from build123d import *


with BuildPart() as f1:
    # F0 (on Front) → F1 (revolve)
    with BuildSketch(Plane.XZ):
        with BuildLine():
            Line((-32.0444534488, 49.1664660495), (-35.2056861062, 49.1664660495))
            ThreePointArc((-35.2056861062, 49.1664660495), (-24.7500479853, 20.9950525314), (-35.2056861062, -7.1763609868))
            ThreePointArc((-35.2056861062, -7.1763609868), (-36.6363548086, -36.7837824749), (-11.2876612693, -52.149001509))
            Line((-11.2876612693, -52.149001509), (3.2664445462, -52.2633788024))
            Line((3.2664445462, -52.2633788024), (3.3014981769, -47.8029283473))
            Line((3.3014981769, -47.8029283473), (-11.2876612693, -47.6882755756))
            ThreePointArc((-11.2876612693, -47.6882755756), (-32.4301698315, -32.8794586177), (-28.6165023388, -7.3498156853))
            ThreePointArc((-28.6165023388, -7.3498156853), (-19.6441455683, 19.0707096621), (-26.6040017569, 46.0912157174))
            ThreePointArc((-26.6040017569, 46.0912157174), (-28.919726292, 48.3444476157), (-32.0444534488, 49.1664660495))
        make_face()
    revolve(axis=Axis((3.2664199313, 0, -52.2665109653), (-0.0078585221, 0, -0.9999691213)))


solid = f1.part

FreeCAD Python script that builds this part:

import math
import FreeCAD as App
import Part
import Sketcher
Q = App.Units.Quantity

doc = App.newDocument("Part")
params = doc.addObject("Spreadsheet::Sheet", "Params")
for row, (alias, value) in enumerate([
    ("sketch1_radius", "1.7 in"),
    ("sketch1_radius2", "0.25 in"),
    ("revolution_angle", "360 deg"),
], start=1):
    params.set(f"A{row}", alias)
    params.set(f"B{row}", "=" + value)
    params.setAlias(f"B{row}", alias)

body = doc.addObject("PartDesign::Body", "Body")

sketch1 = body.newObject("Sketcher::SketchObject", "Sketch")
sketch1.AttachmentSupport = (doc.getObject("XZ_Plane"), [""])
sketch1.MapMode = "FlatFace"
sketch1.addGeometry([
    Part.LineSegment(App.Vector(-32, 49.2, 0), App.Vector(-35.2, 49.2, 0)),
    Part.ArcOfCircle(Part.Circle(App.Vector(-67.9, 21, 0), App.Vector(0, 0, 1), 43.2), math.radians(-41), math.radians(41)),
    Part.ArcOfCircle(Part.Circle(App.Vector(-11.1, -23.2, 0), App.Vector(0, 0, 1), 29), math.radians(146), math.radians(270)),
    Part.LineSegment(App.Vector(-11.3, -52.1, 0), App.Vector(3.3, -52.3, 0)),
    Part.LineSegment(App.Vector(3.3, -52.3, 0), App.Vector(3.3, -47.8, 0)),
    Part.LineSegment(App.Vector(3.3, -47.8, 0), App.Vector(-11.3, -47.7, 0)),
    Part.ArcOfCircle(Part.Circle(App.Vector(-9.9, -23.2, 0), App.Vector(0, 0, 1), 24.5), math.radians(140), math.radians(267)),
    Part.ArcOfCircle(Part.Circle(App.Vector(-68.4, 20.9, 0), App.Vector(0, 0, 1), 48.8), math.radians(-35), math.radians(31)),
    Part.ArcOfCircle(Part.Circle(App.Vector(-32, 42.8, 0), App.Vector(0, 0, 1), 6.3), math.radians(31), math.radians(90)),
], False)
sketch1.addGeometry(Part.LineSegment(App.Vector(4.1, 48.9, 0), App.Vector(3.3, -52.3, 0)), True)
sketch1.addConstraint([
    Sketcher.Constraint("Coincident", 0, 2, 1, 2),
    Sketcher.Constraint("Coincident", 1, 1, 2, 1),
    Sketcher.Constraint("Tangent", 2, 2, 3, 1),
    Sketcher.Constraint("Coincident", 3, 2, 4, 1),
    Sketcher.Constraint("Coincident", 4, 2, 5, 1),
    Sketcher.Constraint("Coincident", 5, 2, 6, 2),
    Sketcher.Constraint("Coincident", 6, 1, 7, 1),
    Sketcher.Constraint("Tangent", 7, 2, 8, 1),
    Sketcher.Constraint("Tangent", 8, 2, 0, 1),
    Sketcher.Constraint("Horizontal", 0),
    Sketcher.Constraint("Coincident", 9, 2, 3, 2),
    Sketcher.Constraint("Perpendicular", 3, 4),
    Sketcher.Constraint("Perpendicular", 4, 5),
    Sketcher.Constraint("Perpendicular", 5, 9),
    Sketcher.Constraint("Vertical", 0, 2, 1, 1),
    Sketcher.Constraint("Vertical", 2, 2, 5, 2),
    Sketcher.Constraint("Radius", 1, Q("1.7 in")),
    Sketcher.Constraint("Radius", 8, Q("0.25 in")),
    Sketcher.Constraint("Radius", 2, Q("28.968508 mm")),
    Sketcher.Constraint("DistanceX", -1, 1, 3, 2, Q("0.1286002 in")),
    Sketcher.Constraint("Radius", 6, Q("24.531298 mm")),
    Sketcher.Constraint("Radius", 7, Q("48.831627 mm")),
    Sketcher.Constraint("DistanceY", 2, 2, -1, 1, Q("52.149002 mm")),
    Sketcher.Constraint("DistanceX", -1, 1, 4, 2, Q("3.301498 mm")),
    Sketcher.Constraint("DistanceX", 7, 2, -1, 1, Q("26.604002 mm")),
    Sketcher.Constraint("DistanceY", 6, 3, 2, 3, Q("0.015402 mm")),
    Sketcher.Constraint("DistanceX", 7, 3, 0, 2, Q("33.235498 mm")),
    Sketcher.Constraint("DistanceX", 6, 1, 7, 2, Q("2.012501 mm")),
    Sketcher.Constraint("Distance", 4, Q("4.460588 mm")),
    Sketcher.Constraint("Distance", 5, Q("14.58961 mm")),
    Sketcher.Constraint("Distance", 9, Q("101.149221 mm")),
    Sketcher.Constraint("DistanceX", 0, 2, 0, 1, Q("3.161233 mm")),
])
sketch1.setExpression("Constraints[16]", "Params.sketch1_radius")
sketch1.setExpression("Constraints[17]", "Params.sketch1_radius2")
revolution = body.newObject("PartDesign::Revolution", "Revolution")
revolution.Profile = sketch1
revolution.ReferenceAxis = (sketch1, ["Axis0"])
revolution.setExpression("Angle", "Params.revolution_angle")

doc.recompute()
